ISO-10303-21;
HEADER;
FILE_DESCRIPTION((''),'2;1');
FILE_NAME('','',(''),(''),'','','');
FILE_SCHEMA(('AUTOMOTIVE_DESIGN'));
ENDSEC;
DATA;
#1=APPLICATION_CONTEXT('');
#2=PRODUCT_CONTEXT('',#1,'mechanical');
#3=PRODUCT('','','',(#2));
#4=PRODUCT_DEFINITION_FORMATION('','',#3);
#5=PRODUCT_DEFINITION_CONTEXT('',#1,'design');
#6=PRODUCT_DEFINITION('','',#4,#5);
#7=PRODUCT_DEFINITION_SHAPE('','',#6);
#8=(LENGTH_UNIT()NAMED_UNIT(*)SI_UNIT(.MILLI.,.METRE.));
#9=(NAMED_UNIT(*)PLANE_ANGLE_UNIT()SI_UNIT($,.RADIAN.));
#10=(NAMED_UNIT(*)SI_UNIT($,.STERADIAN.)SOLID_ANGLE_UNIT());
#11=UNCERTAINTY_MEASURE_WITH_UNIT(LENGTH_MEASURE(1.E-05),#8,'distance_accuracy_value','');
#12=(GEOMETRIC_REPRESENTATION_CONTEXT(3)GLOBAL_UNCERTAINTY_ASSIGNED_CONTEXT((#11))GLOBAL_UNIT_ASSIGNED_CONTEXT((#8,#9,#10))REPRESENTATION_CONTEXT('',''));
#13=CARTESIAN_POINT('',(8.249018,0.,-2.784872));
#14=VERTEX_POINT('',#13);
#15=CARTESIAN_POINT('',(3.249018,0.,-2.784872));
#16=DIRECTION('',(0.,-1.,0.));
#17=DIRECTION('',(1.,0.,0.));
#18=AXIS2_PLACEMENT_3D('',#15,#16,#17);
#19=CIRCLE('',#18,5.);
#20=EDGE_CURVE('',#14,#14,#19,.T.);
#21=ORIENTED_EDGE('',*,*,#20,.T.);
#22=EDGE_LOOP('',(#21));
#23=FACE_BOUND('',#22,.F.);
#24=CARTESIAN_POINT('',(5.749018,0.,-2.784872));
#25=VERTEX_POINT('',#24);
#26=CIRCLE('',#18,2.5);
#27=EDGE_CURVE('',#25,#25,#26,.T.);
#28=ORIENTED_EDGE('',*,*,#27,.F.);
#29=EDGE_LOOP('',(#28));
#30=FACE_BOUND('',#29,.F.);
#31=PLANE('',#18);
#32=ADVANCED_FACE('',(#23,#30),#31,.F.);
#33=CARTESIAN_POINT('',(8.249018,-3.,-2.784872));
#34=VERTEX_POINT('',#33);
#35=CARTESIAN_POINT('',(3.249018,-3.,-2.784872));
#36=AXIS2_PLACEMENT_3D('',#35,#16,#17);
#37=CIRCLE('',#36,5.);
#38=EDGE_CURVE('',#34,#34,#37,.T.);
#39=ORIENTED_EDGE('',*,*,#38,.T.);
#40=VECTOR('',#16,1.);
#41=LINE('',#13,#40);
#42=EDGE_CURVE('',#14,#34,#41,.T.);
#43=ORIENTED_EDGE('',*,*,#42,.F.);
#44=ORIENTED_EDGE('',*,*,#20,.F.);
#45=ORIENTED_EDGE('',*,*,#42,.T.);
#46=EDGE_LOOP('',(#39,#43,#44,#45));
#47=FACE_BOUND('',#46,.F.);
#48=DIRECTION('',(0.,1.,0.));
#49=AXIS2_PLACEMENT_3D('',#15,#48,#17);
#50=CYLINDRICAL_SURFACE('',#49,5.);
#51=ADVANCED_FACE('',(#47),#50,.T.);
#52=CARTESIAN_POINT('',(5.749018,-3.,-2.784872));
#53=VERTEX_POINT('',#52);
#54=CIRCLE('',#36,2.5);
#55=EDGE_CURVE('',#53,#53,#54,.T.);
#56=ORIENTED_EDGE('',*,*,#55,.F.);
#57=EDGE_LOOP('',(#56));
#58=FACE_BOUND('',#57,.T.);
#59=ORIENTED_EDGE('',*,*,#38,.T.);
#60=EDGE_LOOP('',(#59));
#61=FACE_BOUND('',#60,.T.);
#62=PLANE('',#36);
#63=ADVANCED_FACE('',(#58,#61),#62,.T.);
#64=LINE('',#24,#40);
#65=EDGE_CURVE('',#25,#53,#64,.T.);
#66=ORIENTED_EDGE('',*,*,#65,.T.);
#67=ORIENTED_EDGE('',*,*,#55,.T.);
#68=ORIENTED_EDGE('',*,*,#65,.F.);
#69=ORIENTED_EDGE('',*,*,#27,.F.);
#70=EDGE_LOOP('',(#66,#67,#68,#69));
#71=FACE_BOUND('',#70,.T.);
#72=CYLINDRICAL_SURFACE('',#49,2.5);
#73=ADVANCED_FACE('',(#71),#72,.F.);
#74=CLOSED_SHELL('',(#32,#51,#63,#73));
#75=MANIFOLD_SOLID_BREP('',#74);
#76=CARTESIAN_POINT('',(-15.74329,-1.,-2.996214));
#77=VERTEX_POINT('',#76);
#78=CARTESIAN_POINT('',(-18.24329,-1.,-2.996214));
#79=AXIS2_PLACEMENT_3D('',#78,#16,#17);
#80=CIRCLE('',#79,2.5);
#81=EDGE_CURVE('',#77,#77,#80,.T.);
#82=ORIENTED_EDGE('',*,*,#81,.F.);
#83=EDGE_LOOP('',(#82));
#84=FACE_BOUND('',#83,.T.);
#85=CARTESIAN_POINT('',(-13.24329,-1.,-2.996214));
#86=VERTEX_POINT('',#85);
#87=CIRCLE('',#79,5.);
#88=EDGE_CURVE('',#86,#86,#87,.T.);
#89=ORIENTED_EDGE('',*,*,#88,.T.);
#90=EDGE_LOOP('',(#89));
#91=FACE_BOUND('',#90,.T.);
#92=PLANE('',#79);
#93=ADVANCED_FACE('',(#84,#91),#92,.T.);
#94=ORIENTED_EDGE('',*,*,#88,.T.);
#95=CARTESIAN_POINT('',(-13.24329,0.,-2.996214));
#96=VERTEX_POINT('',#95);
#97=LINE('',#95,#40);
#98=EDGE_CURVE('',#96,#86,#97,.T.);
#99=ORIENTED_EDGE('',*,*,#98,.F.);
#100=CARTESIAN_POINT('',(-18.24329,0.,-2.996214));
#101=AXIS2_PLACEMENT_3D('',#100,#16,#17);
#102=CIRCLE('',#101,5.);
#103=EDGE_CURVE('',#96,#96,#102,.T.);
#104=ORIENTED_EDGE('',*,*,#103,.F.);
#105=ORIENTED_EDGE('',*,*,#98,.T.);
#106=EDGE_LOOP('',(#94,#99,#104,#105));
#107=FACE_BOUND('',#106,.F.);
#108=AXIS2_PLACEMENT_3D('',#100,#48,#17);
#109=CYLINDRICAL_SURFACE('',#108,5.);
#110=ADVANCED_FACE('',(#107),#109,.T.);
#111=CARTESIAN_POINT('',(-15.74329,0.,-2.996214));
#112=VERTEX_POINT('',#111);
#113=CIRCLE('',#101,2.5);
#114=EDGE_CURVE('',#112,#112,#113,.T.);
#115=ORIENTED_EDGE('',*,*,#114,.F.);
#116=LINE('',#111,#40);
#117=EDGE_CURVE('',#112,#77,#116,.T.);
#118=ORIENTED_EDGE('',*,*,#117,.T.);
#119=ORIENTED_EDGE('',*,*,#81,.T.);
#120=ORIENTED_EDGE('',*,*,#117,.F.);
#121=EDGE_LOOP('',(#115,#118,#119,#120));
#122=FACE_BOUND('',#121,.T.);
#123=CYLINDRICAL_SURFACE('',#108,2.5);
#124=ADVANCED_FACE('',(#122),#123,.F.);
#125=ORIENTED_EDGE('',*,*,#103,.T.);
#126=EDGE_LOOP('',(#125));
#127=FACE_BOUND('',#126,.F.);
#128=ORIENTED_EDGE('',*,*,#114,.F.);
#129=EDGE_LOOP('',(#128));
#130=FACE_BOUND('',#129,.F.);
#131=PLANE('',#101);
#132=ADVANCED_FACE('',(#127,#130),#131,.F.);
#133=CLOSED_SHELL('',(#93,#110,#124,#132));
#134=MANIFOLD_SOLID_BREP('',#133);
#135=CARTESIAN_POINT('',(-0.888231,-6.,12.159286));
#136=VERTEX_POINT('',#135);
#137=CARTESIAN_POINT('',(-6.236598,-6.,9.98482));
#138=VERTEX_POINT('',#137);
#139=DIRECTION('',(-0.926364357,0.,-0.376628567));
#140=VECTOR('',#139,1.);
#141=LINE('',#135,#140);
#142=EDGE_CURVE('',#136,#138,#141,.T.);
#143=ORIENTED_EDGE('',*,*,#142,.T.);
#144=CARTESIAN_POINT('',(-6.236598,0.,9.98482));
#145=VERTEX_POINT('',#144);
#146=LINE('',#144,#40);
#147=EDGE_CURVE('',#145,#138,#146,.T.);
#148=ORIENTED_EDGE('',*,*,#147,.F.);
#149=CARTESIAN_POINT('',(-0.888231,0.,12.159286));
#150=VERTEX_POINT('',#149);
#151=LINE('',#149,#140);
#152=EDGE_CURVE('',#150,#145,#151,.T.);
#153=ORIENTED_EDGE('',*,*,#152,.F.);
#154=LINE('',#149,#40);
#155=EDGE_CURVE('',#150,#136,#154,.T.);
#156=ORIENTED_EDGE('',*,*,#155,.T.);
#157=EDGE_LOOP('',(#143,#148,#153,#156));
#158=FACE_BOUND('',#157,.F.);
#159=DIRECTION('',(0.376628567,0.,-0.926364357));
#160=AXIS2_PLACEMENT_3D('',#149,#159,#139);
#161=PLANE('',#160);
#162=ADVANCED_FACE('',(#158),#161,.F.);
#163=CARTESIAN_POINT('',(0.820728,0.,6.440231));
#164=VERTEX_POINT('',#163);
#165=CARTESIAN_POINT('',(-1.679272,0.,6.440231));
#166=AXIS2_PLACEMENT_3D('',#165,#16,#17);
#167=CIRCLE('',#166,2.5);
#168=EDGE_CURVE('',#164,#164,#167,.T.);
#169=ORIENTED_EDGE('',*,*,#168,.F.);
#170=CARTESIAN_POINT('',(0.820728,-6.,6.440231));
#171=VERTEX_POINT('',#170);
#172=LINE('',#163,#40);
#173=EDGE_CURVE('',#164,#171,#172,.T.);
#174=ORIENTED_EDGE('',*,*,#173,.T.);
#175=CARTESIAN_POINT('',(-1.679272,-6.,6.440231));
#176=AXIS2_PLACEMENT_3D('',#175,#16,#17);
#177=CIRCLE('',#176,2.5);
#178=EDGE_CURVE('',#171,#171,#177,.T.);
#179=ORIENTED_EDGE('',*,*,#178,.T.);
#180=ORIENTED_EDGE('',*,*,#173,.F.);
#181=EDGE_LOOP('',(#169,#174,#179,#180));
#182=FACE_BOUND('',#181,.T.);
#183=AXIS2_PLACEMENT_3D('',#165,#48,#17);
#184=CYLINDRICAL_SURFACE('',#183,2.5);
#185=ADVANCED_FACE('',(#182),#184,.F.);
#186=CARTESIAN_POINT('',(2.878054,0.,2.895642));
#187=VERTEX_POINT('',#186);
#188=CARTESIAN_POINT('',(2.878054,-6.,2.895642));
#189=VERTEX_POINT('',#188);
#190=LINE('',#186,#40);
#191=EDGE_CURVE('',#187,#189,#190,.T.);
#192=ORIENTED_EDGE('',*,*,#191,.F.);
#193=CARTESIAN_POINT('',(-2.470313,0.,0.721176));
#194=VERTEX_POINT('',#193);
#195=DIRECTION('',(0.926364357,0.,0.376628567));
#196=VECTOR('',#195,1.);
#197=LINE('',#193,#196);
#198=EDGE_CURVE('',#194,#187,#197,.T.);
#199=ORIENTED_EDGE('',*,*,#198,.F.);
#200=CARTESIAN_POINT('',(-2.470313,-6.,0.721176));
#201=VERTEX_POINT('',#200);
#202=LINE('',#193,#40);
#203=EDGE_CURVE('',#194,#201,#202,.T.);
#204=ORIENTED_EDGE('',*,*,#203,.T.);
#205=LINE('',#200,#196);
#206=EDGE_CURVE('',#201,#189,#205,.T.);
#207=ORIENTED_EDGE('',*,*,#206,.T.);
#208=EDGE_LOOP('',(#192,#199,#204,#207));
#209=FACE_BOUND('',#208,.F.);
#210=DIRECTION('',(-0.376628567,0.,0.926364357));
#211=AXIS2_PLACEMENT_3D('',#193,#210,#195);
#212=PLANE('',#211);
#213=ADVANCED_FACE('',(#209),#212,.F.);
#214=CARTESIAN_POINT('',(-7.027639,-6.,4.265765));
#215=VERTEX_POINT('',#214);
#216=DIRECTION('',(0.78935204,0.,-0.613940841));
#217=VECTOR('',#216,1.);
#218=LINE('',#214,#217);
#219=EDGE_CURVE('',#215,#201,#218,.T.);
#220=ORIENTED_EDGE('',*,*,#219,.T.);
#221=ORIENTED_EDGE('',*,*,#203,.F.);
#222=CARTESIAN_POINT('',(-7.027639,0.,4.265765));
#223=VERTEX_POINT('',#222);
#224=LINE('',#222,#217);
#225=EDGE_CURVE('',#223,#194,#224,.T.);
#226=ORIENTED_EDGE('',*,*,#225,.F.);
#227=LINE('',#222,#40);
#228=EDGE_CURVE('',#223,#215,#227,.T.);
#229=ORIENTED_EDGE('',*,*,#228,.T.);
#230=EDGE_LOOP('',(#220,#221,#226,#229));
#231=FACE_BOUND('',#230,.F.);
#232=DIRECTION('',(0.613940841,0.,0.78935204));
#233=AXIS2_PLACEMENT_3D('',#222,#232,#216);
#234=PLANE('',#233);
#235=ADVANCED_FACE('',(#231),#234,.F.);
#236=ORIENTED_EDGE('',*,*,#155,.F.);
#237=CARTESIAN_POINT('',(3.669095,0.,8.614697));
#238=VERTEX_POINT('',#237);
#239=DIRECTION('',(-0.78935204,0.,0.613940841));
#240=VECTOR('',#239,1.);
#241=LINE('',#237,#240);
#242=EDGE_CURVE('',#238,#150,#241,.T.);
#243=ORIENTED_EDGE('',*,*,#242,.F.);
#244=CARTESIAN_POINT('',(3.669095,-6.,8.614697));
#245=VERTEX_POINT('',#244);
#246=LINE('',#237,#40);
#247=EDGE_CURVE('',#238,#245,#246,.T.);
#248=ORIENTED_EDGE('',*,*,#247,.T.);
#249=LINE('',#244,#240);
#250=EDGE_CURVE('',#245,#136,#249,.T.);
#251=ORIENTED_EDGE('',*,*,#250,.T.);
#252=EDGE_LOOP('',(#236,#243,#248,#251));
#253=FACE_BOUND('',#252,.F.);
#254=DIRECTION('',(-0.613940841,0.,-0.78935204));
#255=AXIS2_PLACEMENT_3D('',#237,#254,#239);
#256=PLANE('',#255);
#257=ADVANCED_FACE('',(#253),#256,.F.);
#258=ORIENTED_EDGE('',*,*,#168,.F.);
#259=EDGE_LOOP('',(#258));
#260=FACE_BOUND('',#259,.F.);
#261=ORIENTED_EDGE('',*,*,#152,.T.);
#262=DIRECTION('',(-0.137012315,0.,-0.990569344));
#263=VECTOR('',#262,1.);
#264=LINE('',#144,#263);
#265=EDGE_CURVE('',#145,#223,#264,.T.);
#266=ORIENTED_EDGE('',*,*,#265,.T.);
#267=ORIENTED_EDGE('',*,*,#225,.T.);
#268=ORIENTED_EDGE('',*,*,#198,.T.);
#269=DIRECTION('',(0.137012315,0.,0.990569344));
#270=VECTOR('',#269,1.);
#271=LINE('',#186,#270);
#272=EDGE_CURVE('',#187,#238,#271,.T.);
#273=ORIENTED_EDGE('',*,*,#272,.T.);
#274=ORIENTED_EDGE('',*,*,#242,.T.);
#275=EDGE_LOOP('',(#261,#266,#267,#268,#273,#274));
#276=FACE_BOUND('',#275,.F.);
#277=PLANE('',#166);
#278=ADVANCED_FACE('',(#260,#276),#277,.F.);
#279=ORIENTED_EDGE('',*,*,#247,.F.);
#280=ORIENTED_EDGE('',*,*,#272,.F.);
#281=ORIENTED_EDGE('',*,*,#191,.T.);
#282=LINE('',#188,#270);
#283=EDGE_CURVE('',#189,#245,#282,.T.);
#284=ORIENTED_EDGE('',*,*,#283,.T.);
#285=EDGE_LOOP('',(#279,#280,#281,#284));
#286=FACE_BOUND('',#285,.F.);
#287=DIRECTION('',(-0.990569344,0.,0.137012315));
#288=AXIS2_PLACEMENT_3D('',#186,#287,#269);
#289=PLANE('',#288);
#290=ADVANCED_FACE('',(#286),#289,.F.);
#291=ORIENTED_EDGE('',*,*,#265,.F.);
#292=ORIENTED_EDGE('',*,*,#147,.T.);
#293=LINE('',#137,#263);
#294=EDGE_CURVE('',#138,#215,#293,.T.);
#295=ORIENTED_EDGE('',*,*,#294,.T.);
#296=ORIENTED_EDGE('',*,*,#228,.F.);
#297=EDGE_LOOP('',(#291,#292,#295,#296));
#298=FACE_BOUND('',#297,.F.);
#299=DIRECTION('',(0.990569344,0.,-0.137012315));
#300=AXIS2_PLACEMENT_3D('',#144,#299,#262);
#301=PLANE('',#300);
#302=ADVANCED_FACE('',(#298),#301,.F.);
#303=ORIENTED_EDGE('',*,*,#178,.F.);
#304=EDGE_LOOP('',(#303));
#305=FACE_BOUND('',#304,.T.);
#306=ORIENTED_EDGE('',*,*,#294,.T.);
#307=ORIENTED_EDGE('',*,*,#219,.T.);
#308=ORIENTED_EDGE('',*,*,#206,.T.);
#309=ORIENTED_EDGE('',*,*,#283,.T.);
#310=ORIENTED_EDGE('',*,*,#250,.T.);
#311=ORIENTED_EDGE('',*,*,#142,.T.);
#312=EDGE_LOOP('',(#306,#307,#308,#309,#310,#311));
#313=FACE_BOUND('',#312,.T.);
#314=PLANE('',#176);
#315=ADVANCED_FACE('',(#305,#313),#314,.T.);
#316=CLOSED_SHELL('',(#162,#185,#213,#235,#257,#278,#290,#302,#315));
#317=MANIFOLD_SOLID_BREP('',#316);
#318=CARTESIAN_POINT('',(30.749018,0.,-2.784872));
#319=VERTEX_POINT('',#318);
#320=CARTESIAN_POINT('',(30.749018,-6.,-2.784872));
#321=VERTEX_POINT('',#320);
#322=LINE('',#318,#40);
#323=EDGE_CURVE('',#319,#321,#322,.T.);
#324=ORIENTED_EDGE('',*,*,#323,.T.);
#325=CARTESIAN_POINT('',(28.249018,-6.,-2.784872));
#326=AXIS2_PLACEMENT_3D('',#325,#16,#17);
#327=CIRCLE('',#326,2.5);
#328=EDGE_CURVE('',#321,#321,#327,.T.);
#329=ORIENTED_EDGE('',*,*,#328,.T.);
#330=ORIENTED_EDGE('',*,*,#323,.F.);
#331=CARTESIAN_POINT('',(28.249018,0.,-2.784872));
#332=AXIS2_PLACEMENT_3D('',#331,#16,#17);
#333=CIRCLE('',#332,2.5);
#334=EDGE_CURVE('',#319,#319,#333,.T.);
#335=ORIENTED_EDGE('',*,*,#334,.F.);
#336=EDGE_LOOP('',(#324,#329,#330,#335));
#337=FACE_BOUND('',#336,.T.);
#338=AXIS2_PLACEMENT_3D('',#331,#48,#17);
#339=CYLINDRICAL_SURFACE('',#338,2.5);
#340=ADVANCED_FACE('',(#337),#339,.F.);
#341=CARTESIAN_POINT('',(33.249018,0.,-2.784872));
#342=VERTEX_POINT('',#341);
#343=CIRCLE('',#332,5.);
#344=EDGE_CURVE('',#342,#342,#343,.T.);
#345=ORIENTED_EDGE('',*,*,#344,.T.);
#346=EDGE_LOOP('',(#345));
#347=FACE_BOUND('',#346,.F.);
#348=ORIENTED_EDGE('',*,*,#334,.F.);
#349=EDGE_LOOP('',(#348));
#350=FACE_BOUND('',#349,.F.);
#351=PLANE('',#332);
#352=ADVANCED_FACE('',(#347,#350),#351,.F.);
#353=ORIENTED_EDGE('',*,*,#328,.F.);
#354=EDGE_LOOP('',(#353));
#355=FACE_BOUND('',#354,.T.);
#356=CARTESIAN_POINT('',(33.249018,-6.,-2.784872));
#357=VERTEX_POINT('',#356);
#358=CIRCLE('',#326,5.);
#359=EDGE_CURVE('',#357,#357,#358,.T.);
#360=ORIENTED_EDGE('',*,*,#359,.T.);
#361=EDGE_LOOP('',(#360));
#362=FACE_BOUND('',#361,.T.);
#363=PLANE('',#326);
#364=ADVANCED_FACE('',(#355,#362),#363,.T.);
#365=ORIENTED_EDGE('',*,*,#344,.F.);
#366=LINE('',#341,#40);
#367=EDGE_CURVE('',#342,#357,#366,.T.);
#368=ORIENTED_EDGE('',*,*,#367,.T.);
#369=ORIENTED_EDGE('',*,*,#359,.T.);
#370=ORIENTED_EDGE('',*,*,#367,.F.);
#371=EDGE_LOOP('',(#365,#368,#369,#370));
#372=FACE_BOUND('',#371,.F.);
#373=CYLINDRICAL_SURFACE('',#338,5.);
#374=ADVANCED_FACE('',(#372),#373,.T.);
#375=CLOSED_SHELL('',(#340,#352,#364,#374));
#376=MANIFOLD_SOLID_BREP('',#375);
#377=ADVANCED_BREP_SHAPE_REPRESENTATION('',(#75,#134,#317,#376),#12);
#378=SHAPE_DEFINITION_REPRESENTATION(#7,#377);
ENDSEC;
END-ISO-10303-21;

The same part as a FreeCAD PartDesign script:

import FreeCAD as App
import Part
import Sketcher

doc = App.newDocument("Part")
body = doc.addObject("PartDesign::Body", "Body")

# Sketch on XZ plane
sketch1 = doc.addObject("Sketcher::SketchObject", "Sketch")
body.addObject(sketch1)
sketch1.AttachmentSupport = (doc.XZ_Plane, [""])
sketch1.MapMode = "FlatFace"
sketch1.addGeometry([
    Part.Circle(App.Vector(3.249018, -2.784872, 0), App.Vector(0, 0, 1), 5),
    Part.Circle(App.Vector(3.249018, -2.784872, 0), App.Vector(0, 0, 1), 2.5),
], False)
sketch1.addConstraint([
    Sketcher.Constraint("Coincident", 1, 3, 0, 3),
    Sketcher.Constraint("Diameter", 0, 10.0),
    Sketcher.Constraint("Diameter", 1, 5.0),
    Sketcher.Constraint("DistanceX", -1, 1, 0, 3, 3.249018),
    Sketcher.Constraint("DistanceY", 0, 3, -1, 1, 2.784872),
])
pad1 = doc.addObject("PartDesign::Pad", "Pad")
body.addObject(pad1)
pad1.Profile = sketch1
pad1.Length = 3
body2 = doc.addObject("PartDesign::Body", "Body001")

# Sketch on XZ plane
sketch2 = doc.addObject("Sketcher::SketchObject", "Sketch001")
body2.addObject(sketch2)
sketch2.AttachmentSupport = (doc.getObject("XZ_Plane001"), [""])
sketch2.MapMode = "FlatFace"
sketch2.addGeometry([
    Part.Circle(App.Vector(28.249018, -2.784872, 0), App.Vector(0, 0, 1), 5),
    Part.Circle(App.Vector(28.249018, -2.784872, 0), App.Vector(0, 0, 1), 2.5),
], False)
sketch2.addConstraint([
    Sketcher.Constraint("Coincident", 1, 3, 0, 3),
    Sketcher.Constraint("Diameter", 0, 10.0),
    Sketcher.Constraint("Diameter", 1, 5.0),
    Sketcher.Constraint("DistanceY", 0, 3, -1, 1, 2.784872),
    Sketcher.Constraint("DistanceX", -1, 1, 0, 3, 28.249018),
])
pad2 = doc.addObject("PartDesign::Pad", "Pad001")
body2.addObject(pad2)
pad2.Profile = sketch2
pad2.Length = 6
body3 = doc.addObject("PartDesign::Body", "Body002")

# Sketch on XZ plane
sketch3 = doc.addObject("Sketcher::SketchObject", "Sketch002")
body3.addObject(sketch3)
sketch3.AttachmentSupport = (doc.getObject("XZ_Plane002"), [""])
sketch3.MapMode = "FlatFace"
sketch3.addGeometry([
    Part.LineSegment(App.Vector(3.669095, 8.614697, 0), App.Vector(-0.888231, 12.159286, 0)),  # 0
    Part.LineSegment(App.Vector(-0.888231, 12.159286, 0), App.Vector(-6.236598, 9.98482, 0)),  # 1
    Part.LineSegment(App.Vector(-6.236598, 9.98482, 0), App.Vector(-7.027639, 4.265765, 0)),  # 2
    Part.LineSegment(App.Vector(-7.027639, 4.265765, 0), App.Vector(-2.470313, 0.721176, 0)),  # 3
    Part.LineSegment(App.Vector(-2.470313, 0.721176, 0), App.Vector(2.878054, 2.895642, 0)),  # 4
    Part.LineSegment(App.Vector(2.878054, 2.895642, 0), App.Vector(3.669095, 8.614697, 0)),  # 5
    Part.Circle(App.Vector(-1.679272, 6.440231, 0), App.Vector(0, 0, 1), 2.5),  # 6
], False)
sketch3.addConstraint([
    Sketcher.Constraint("Coincident", 0, 2, 1, 1),
    Sketcher.Constraint("Coincident", 1, 2, 2, 1),
    Sketcher.Constraint("Coincident", 2, 2, 3, 1),
    Sketcher.Constraint("Coincident", 3, 2, 4, 1),
    Sketcher.Constraint("Coincident", 4, 2, 5, 1),
    Sketcher.Constraint("Coincident", 5, 2, 0, 1),
    Sketcher.Constraint("Parallel", 0, 3),
    Sketcher.Constraint("Parallel", 1, 4),
    Sketcher.Constraint("Parallel", 2, 5),
    Sketcher.Constraint("Equal", 0, 1),
    Sketcher.Constraint("Equal", 1, 2),
    Sketcher.Constraint("Equal", 2, 3),
    Sketcher.Constraint("Diameter", 6, 5.0),
    Sketcher.Constraint("DistanceY", -1, 1, 6, 3, 6.440231),
    Sketcher.Constraint("DistanceX", 0, 2, -1, 1, 0.888231),
    Sketcher.Constraint("DistanceY", -1, 1, 1, 2, 9.98482),
    Sketcher.Constraint("DistanceX", 2, 2, -1, 1, 7.027639),
    Sketcher.Constraint("DistanceY", -1, 1, 4, 2, 2.895642),
    Sketcher.Constraint("DistanceX", 6, 3, 0, 2, 0.791041),
    Sketcher.Constraint("DistanceX", 2, 2, 1, 2, 0.791041),
    Sketcher.Constraint("DistanceY", 2, 2, 0, 2, 7.893521),
])
pad3 = doc.addObject("PartDesign::Pad", "Pad002")
body3.addObject(pad3)
pad3.Profile = sketch3
pad3.Length = 6
body4 = doc.addObject("PartDesign::Body", "Body003")

# Sketch on XZ plane
sketch4 = doc.addObject("Sketcher::SketchObject", "Sketch003")
body4.addObject(sketch4)
sketch4.AttachmentSupport = (doc.getObject("XZ_Plane003"), [""])
sketch4.MapMode = "FlatFace"
sketch4.addGeometry([
    Part.Circle(App.Vector(-18.24329, -2.996214, 0), App.Vector(0, 0, 1), 5),
    Part.Circle(App.Vector(-18.24329, -2.996214, 0), App.Vector(0, 0, 1), 2.5),
], False)
sketch4.addConstraint([
    Sketcher.Constraint("Coincident", 1, 3, 0, 3),
    Sketcher.Constraint("Diameter", 0, 10.0),
    Sketcher.Constraint("Diameter", 1, 5.0),
    Sketcher.Constraint("DistanceX", 0, 3, -1, 1, 18.24329),
    Sketcher.Constraint("DistanceY", 0, 3, -1, 1, 2.996214),
])
pad4 = doc.addObject("PartDesign::Pad", "Pad003")
body4.addObject(pad4)
pad4.Profile = sketch4
pad4.Length = 1

doc.recompute()
